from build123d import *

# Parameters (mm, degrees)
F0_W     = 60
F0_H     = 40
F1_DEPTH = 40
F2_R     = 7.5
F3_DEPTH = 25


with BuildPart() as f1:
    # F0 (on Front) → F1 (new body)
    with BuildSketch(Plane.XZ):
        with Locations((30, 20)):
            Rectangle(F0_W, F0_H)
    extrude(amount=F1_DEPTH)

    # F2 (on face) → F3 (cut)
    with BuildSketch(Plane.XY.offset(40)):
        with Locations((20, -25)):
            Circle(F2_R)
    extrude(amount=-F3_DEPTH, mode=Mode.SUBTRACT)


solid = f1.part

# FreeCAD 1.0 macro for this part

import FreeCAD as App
import Part
import Sketcher

V = App.Vector


def add_polygon(sketch, points):
    """Adds a closed chain of lines whose ends are joined by coincident constraints."""
    first, n = sketch.GeometryCount, len(points)
    for a, b in zip(points, points[1:] + points[:1]):
        sketch.addGeometry(Part.LineSegment(App.Vector(*a, 0), App.Vector(*b, 0)), False)
    for i in range(n):
        sketch.addConstraint(Sketcher.Constraint("Coincident", first + i, 2, first + (i + 1) % n, 1))

doc = App.newDocument("Part")
body = doc.addObject("PartDesign::Body", "Body")

sketch1 = doc.addObject("Sketcher::SketchObject", "Sketch")
body.addObject(sketch1)
sketch1.AttachmentSupport = (doc.XZ_Plane, [""])
sketch1.MapMode = "FlatFace"
add_polygon(sketch1, [(0, 40), (0, 0), (60, 0), (60, 40)])
sketch1.addConstraint([
    Sketcher.Constraint("Vertical", 0),
    Sketcher.Constraint("Horizontal", 1),
    Sketcher.Constraint("Vertical", 2),
    Sketcher.Constraint("Horizontal", 3),
    Sketcher.Constraint("Coincident", 0, 2, -1, 1),
    Sketcher.Constraint("DistanceX", 1, 1, 1, 2, 60.0),
    Sketcher.Constraint("DistanceY", 0, 2, 0, 1, 40.0),
])
pad1 = doc.addObject("PartDesign::Pad", "Pad")
body.addObject(pad1)
pad1.Profile = sketch1
pad1.Length = 40

sketch2 = doc.addObject("Sketcher::SketchObject", "Sketch001")
body.addObject(sketch2)
sketch2.AttachmentSupport = (doc.XY_Plane, [""])
sketch2.MapMode = "FlatFace"
sketch2.AttachmentOffset = App.Placement(V(0, 0, 40), App.Rotation())
sketch2.addGeometry(Part.Circle(V(20, -25, 0), V(0, 0, 1), 8), False)
sketch2.addConstraint([
    Sketcher.Constraint("Diameter", 0, 15.0),
    Sketcher.Constraint("DistanceX", -1, 1, 0, 3, 20.0),
    Sketcher.Constraint("DistanceY", 0, 3, -1, 1, 25.0),
])
pocket1 = doc.addObject("PartDesign::Pocket", "Pocket")
body.addObject(pocket1)
pocket1.Profile = sketch2
pocket1.Length = 25

doc.recompute()
